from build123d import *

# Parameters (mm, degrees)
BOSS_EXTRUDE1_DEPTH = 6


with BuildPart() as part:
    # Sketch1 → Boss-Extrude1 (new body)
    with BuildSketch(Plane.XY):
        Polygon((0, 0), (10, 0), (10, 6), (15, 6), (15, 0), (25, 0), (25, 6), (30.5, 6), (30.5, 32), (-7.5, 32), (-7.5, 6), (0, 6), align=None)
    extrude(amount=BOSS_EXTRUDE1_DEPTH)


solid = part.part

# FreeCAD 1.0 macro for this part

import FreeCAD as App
import Part
import Sketcher

V = App.Vector
Q = App.Units.Quantity

doc = App.newDocument("Part")
body = doc.addObject("PartDesign::Body", "Body")

# Sketch on XY plane
sketch1 = doc.addObject("Sketcher::SketchObject", "Sketch")
body.addObject(sketch1)
sketch1.AttachmentSupport = (doc.XY_Plane, [""])
sketch1.MapMode = "FlatFace"
sketch1.addGeometry([
    Part.LineSegment(V(0, 0, 0), V(10, 0, 0)),  # 0
    Part.LineSegment(V(10, 0, 0), V(10, 6, 0)),  # 1
    Part.LineSegment(V(10, 6, 0), V(15, 6, 0)),  # 2
    Part.LineSegment(V(15, 6, 0), V(15, 0, 0)),  # 3
    Part.LineSegment(V(15, 0, 0), V(25, 0, 0)),  # 4
    Part.LineSegment(V(25, 0, 0), V(25, 6, 0)),  # 5
    Part.LineSegment(V(25, 6, 0), V(30, 6, 0)),  # 6
    Part.LineSegment(V(30, 6, 0), V(30, 32, 0)),  # 7
    Part.LineSegment(V(30, 32, 0), V(-8, 32, 0)),  # 8
    Part.LineSegment(V(-8, 32, 0), V(-8, 6, 0)),  # 9
    Part.LineSegment(V(-8, 6, 0), V(0, 6, 0)),  # 10
    Part.LineSegment(V(0, 6, 0), V(0, 0, 0)),  # 11
], False)
sketch1.addConstraint([
    Sketcher.Constraint("Coincident", 0, 2, 1, 1),
    Sketcher.Constraint("Coincident", 1, 2, 2, 1),
    Sketcher.Constraint("Coincident", 2, 2, 3, 1),
    Sketcher.Constraint("Coincident", 3, 2, 4, 1),
    Sketcher.Constraint("Coincident", 4, 2, 5, 1),
    Sketcher.Constraint("Coincident", 5, 2, 6, 1),
    Sketcher.Constraint("Coincident", 6, 2, 7, 1),
    Sketcher.Constraint("Coincident", 7, 2, 8, 1),
    Sketcher.Constraint("Coincident", 8, 2, 9, 1),
    Sketcher.Constraint("Coincident", 9, 2, 10, 1),
    Sketcher.Constraint("Coincident", 10, 2, 11, 1),
    Sketcher.Constraint("Coincident", 11, 2, 0, 1),
    Sketcher.Constraint("Horizontal", 0),
    Sketcher.Constraint("Vertical", 1),
    Sketcher.Constraint("Horizontal", 2),
    Sketcher.Constraint("Vertical", 3),
    Sketcher.Constraint("Horizontal", 4),
    Sketcher.Constraint("Vertical", 5),
    Sketcher.Constraint("Horizontal", 6),
    Sketcher.Constraint("Vertical", 7),
    Sketcher.Constraint("Horizontal", 8),
    Sketcher.Constraint("Vertical", 9),
    Sketcher.Constraint("Horizontal", 10),
    Sketcher.Constraint("Vertical", 11),
    Sketcher.Constraint("Coincident", 11, 2, -1, 1),
    Sketcher.Constraint("PointOnObject", 3, 2, -1),
    Sketcher.Constraint("Horizontal", 2, 2, 5, 2),
    Sketcher.Constraint("Horizontal", 6, 2, 9, 2),
    Sketcher.Constraint("Equal", 0, 4),
    Sketcher.Constraint("DistanceX", 0, 1, 0, 2, Q("10 mm")),
    Sketcher.Constraint("DistanceX", 2, 1, 2, 2, Q("5 mm")),
    Sketcher.Constraint("DistanceX", 8, 2, 8, 1, Q("38 mm")),
    Sketcher.Constraint("DistanceY", 1, 1, 1, 2, Q("6 mm")),
    Sketcher.Constraint("DistanceY", 7, 1, 7, 2, Q("26 mm")),
    Sketcher.Constraint("DistanceX", 6, 1, 6, 2, Q("5.5 mm")),
])
pad1 = doc.addObject("PartDesign::Pad", "Pad")
body.addObject(pad1)
pad1.Profile = sketch1
pad1.Length = 6

doc.recompute()
